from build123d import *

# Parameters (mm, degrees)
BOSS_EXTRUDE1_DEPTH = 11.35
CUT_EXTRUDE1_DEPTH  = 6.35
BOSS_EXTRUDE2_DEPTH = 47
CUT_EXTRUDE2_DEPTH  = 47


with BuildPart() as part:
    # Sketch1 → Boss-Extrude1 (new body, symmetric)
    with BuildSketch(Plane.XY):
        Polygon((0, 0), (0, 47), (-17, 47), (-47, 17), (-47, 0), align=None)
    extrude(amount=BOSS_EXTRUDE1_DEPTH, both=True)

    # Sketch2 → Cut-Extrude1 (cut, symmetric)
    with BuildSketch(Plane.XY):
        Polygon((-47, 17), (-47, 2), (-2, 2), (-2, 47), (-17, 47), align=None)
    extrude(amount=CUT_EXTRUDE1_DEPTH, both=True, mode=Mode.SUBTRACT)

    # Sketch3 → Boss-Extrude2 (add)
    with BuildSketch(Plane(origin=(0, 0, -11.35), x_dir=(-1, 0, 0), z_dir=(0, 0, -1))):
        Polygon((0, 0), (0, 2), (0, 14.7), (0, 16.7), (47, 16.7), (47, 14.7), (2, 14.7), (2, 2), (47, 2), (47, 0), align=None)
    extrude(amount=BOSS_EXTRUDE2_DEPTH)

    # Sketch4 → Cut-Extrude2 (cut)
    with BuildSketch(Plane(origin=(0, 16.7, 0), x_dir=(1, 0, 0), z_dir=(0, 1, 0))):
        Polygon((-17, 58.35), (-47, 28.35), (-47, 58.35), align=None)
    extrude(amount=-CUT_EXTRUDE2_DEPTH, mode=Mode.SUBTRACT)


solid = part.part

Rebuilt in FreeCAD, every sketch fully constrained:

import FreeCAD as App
import Part
import Sketcher

V = App.Vector

doc = App.newDocument("Part")
body = doc.addObject("PartDesign::Body", "Body")

# Sketch on XY plane
sketch1 = doc.addObject("Sketcher::SketchObject", "Sketch")
body.addObject(sketch1)
sketch1.AttachmentSupport = (doc.XY_Plane, [""])
sketch1.MapMode = "FlatFace"
sketch1.addGeometry([
    Part.LineSegment(V(0, 0, 0), V(0, 47, 0)),  # 0
    Part.LineSegment(V(0, 47, 0), V(-17, 47, 0)),  # 1
    Part.LineSegment(V(-17, 47, 0), V(-47, 17, 0)),  # 2
    Part.LineSegment(V(-47, 17, 0), V(-47, 0, 0)),  # 3
    Part.LineSegment(V(-47, 0, 0), V(0, 0, 0)),  # 4
], False)
sketch1.addConstraint([
    Sketcher.Constraint("Coincident", 0, 2, 1, 1),
    Sketcher.Constraint("Coincident", 1, 2, 2, 1),
    Sketcher.Constraint("Coincident", 2, 2, 3, 1),
    Sketcher.Constraint("Coincident", 3, 2, 4, 1),
    Sketcher.Constraint("Coincident", 4, 2, 0, 1),
    Sketcher.Constraint("Vertical", 0),
    Sketcher.Constraint("Horizontal", 1),
    Sketcher.Constraint("Vertical", 3),
    Sketcher.Constraint("Horizontal", 4),
    Sketcher.Constraint("Coincident", 4, 2, -1, 1),
    Sketcher.Constraint("Equal", 4, 0),
    Sketcher.Constraint("Equal", 1, 3),
    Sketcher.Constraint("DistanceX", 1, 2, 1, 1, 17.0),
    Sketcher.Constraint("DistanceX", 4, 1, 4, 2, 47.0),
])
pad1 = doc.addObject("PartDesign::Pad", "Pad")
body.addObject(pad1)
pad1.Profile = sketch1
pad1.Length = 22.7
pad1.Midplane = True

# Sketch on XY plane
sketch2 = doc.addObject("Sketcher::SketchObject", "Sketch001")
body.addObject(sketch2)
sketch2.AttachmentSupport = (doc.XY_Plane, [""])
sketch2.MapMode = "FlatFace"
sketch2.addGeometry([
    Part.LineSegment(V(-47, 17, 0), V(-47, 2, 0)),  # 0
    Part.LineSegment(V(-47, 2, 0), V(-2, 2, 0)),  # 1
    Part.LineSegment(V(-2, 2, 0), V(-2, 47, 0)),  # 2
    Part.LineSegment(V(-2, 47, 0), V(-17, 47, 0)),  # 3
    Part.LineSegment(V(-17, 47, 0), V(-47, 17, 0)),  # 4
], False)
sketch2.addConstraint([
    Sketcher.Constraint("Coincident", 0, 2, 1, 1),
    Sketcher.Constraint("Coincident", 1, 2, 2, 1),
    Sketcher.Constraint("Coincident", 2, 2, 3, 1),
    Sketcher.Constraint("Coincident", 3, 2, 4, 1),
    Sketcher.Constraint("Coincident", 4, 2, 0, 1),
    Sketcher.Constraint("Vertical", 0),
    Sketcher.Constraint("Horizontal", 1),
    Sketcher.Constraint("Vertical", 2),
    Sketcher.Constraint("Horizontal", 3),
    Sketcher.Constraint("Equal", 3, 0),
    Sketcher.Constraint("Equal", 1, 2),
    Sketcher.Constraint("DistanceX", 1, 1, 1, 2, 45.0),
    Sketcher.Constraint("DistanceX", 3, 2, 3, 1, 15.0),
    Sketcher.Constraint("DistanceX", 0, 2, -1, 1, 47.0),
    Sketcher.Constraint("DistanceY", -1, 1, 0, 2, 2.0),
])
pocket1 = doc.addObject("PartDesign::Pocket", "Pocket")
body.addObject(pocket1)
pocket1.Profile = sketch2
pocket1.Length = 12.7
pocket1.Midplane = True

# Sketch on XY plane
sketch3 = doc.addObject("Sketcher::SketchObject", "Sketch002")
body.addObject(sketch3)
sketch3.AttachmentSupport = (doc.XY_Plane, [""])
sketch3.MapMode = "FlatFace"
sketch3.AttachmentOffset = App.Placement(V(0, 0, -11.35), App.Rotation())
sketch3.addGeometry([
    Part.LineSegment(V(0, 16.7, 0), V(0, 0, 0)),  # 0
    Part.LineSegment(V(0, 0, 0), V(-47, 0, 0)),  # 1
    Part.LineSegment(V(-47, 0, 0), V(-47, 2, 0)),  # 2
    Part.LineSegment(V(-47, 2, 0), V(-2, 2, 0)),  # 3
    Part.LineSegment(V(-2, 2, 0), V(-2, 14.7, 0)),  # 4
    Part.LineSegment(V(-2, 14.7, 0), V(-47, 14.7, 0)),  # 5
    Part.LineSegment(V(-47, 14.7, 0), V(-47, 16.7, 0)),  # 6
    Part.LineSegment(V(-47, 16.7, 0), V(0, 16.7, 0)),  # 7
], False)
sketch3.addConstraint([
    Sketcher.Constraint("Coincident", 0, 2, 1, 1),
    Sketcher.Constraint("Coincident", 1, 2, 2, 1),
    Sketcher.Constraint("Coincident", 2, 2, 3, 1),
    Sketcher.Constraint("Coincident", 3, 2, 4, 1),
    Sketcher.Constraint("Coincident", 4, 2, 5, 1),
    Sketcher.Constraint("Coincident", 5, 2, 6, 1),
    Sketcher.Constraint("Coincident", 6, 2, 7, 1),
    Sketcher.Constraint("Coincident", 7, 2, 0, 1),
    Sketcher.Constraint("Vertical", 0),
    Sketcher.Constraint("Horizontal", 1),
    Sketcher.Constraint("Vertical", 2),
    Sketcher.Constraint("Horizontal", 3),
    Sketcher.Constraint("Vertical", 4),
    Sketcher.Constraint("Horizontal", 5),
    Sketcher.Constraint("Vertical", 6),
    Sketcher.Constraint("Horizontal", 7),
    Sketcher.Constraint("Coincident", 0, 2, -1, 1),
    Sketcher.Constraint("Vertical", 2, 2, 5, 2),
    Sketcher.Constraint("Equal", 2, 6),
    Sketcher.Constraint("DistanceX", 1, 2, 1, 1, 47.0),
    Sketcher.Constraint("DistanceX", 3, 1, 3, 2, 45.0),
    Sketcher.Constraint("DistanceY", 2, 1, 2, 2, 2.0),
    Sketcher.Constraint("DistanceY", 0, 2, 0, 1, 16.7),
])
pad2 = doc.addObject("PartDesign::Pad", "Pad001")
body.addObject(pad2)
pad2.Profile = sketch3
pad2.Length = 47
pad2.Reversed = True

# Sketch on XZ plane
sketch4 = doc.addObject("Sketcher::SketchObject", "Sketch003")
body.addObject(sketch4)
sketch4.AttachmentSupport = (doc.XZ_Plane, [""])
sketch4.MapMode = "FlatFace"
sketch4.AttachmentOffset = App.Placement(V(0, 0, -16.7), App.Rotation())
sketch4.addGeometry([
    Part.LineSegment(V(-47, -28, 0), V(-17, -58, 0)),
    Part.LineSegment(V(-17, -58, 0), V(-47, -58, 0)),
    Part.LineSegment(V(-47, -58, 0), V(-47, -28, 0)),
], False)
sketch4.addConstraint([
    Sketcher.Constraint("Coincident", 0, 2, 1, 1),
    Sketcher.Constraint("Coincident", 1, 2, 2, 1),
    Sketcher.Constraint("Coincident", 2, 2, 0, 1),
    Sketcher.Constraint("Horizontal", 1),
    Sketcher.Constraint("Vertical", 2),
    Sketcher.Constraint("Equal", 1, 2),
    Sketcher.Constraint("DistanceX", 1, 2, 1, 1, 30.0),
    Sketcher.Constraint("DistanceX", 0, 2, -1, 1, 17.0),
    Sketcher.Constraint("DistanceY", 0, 2, -1, 1, 58.35),
])
pocket2 = doc.addObject("PartDesign::Pocket", "Pocket001")
body.addObject(pocket2)
pocket2.Profile = sketch4
pocket2.Length = 47
pocket2.Reversed = True

doc.recompute()
